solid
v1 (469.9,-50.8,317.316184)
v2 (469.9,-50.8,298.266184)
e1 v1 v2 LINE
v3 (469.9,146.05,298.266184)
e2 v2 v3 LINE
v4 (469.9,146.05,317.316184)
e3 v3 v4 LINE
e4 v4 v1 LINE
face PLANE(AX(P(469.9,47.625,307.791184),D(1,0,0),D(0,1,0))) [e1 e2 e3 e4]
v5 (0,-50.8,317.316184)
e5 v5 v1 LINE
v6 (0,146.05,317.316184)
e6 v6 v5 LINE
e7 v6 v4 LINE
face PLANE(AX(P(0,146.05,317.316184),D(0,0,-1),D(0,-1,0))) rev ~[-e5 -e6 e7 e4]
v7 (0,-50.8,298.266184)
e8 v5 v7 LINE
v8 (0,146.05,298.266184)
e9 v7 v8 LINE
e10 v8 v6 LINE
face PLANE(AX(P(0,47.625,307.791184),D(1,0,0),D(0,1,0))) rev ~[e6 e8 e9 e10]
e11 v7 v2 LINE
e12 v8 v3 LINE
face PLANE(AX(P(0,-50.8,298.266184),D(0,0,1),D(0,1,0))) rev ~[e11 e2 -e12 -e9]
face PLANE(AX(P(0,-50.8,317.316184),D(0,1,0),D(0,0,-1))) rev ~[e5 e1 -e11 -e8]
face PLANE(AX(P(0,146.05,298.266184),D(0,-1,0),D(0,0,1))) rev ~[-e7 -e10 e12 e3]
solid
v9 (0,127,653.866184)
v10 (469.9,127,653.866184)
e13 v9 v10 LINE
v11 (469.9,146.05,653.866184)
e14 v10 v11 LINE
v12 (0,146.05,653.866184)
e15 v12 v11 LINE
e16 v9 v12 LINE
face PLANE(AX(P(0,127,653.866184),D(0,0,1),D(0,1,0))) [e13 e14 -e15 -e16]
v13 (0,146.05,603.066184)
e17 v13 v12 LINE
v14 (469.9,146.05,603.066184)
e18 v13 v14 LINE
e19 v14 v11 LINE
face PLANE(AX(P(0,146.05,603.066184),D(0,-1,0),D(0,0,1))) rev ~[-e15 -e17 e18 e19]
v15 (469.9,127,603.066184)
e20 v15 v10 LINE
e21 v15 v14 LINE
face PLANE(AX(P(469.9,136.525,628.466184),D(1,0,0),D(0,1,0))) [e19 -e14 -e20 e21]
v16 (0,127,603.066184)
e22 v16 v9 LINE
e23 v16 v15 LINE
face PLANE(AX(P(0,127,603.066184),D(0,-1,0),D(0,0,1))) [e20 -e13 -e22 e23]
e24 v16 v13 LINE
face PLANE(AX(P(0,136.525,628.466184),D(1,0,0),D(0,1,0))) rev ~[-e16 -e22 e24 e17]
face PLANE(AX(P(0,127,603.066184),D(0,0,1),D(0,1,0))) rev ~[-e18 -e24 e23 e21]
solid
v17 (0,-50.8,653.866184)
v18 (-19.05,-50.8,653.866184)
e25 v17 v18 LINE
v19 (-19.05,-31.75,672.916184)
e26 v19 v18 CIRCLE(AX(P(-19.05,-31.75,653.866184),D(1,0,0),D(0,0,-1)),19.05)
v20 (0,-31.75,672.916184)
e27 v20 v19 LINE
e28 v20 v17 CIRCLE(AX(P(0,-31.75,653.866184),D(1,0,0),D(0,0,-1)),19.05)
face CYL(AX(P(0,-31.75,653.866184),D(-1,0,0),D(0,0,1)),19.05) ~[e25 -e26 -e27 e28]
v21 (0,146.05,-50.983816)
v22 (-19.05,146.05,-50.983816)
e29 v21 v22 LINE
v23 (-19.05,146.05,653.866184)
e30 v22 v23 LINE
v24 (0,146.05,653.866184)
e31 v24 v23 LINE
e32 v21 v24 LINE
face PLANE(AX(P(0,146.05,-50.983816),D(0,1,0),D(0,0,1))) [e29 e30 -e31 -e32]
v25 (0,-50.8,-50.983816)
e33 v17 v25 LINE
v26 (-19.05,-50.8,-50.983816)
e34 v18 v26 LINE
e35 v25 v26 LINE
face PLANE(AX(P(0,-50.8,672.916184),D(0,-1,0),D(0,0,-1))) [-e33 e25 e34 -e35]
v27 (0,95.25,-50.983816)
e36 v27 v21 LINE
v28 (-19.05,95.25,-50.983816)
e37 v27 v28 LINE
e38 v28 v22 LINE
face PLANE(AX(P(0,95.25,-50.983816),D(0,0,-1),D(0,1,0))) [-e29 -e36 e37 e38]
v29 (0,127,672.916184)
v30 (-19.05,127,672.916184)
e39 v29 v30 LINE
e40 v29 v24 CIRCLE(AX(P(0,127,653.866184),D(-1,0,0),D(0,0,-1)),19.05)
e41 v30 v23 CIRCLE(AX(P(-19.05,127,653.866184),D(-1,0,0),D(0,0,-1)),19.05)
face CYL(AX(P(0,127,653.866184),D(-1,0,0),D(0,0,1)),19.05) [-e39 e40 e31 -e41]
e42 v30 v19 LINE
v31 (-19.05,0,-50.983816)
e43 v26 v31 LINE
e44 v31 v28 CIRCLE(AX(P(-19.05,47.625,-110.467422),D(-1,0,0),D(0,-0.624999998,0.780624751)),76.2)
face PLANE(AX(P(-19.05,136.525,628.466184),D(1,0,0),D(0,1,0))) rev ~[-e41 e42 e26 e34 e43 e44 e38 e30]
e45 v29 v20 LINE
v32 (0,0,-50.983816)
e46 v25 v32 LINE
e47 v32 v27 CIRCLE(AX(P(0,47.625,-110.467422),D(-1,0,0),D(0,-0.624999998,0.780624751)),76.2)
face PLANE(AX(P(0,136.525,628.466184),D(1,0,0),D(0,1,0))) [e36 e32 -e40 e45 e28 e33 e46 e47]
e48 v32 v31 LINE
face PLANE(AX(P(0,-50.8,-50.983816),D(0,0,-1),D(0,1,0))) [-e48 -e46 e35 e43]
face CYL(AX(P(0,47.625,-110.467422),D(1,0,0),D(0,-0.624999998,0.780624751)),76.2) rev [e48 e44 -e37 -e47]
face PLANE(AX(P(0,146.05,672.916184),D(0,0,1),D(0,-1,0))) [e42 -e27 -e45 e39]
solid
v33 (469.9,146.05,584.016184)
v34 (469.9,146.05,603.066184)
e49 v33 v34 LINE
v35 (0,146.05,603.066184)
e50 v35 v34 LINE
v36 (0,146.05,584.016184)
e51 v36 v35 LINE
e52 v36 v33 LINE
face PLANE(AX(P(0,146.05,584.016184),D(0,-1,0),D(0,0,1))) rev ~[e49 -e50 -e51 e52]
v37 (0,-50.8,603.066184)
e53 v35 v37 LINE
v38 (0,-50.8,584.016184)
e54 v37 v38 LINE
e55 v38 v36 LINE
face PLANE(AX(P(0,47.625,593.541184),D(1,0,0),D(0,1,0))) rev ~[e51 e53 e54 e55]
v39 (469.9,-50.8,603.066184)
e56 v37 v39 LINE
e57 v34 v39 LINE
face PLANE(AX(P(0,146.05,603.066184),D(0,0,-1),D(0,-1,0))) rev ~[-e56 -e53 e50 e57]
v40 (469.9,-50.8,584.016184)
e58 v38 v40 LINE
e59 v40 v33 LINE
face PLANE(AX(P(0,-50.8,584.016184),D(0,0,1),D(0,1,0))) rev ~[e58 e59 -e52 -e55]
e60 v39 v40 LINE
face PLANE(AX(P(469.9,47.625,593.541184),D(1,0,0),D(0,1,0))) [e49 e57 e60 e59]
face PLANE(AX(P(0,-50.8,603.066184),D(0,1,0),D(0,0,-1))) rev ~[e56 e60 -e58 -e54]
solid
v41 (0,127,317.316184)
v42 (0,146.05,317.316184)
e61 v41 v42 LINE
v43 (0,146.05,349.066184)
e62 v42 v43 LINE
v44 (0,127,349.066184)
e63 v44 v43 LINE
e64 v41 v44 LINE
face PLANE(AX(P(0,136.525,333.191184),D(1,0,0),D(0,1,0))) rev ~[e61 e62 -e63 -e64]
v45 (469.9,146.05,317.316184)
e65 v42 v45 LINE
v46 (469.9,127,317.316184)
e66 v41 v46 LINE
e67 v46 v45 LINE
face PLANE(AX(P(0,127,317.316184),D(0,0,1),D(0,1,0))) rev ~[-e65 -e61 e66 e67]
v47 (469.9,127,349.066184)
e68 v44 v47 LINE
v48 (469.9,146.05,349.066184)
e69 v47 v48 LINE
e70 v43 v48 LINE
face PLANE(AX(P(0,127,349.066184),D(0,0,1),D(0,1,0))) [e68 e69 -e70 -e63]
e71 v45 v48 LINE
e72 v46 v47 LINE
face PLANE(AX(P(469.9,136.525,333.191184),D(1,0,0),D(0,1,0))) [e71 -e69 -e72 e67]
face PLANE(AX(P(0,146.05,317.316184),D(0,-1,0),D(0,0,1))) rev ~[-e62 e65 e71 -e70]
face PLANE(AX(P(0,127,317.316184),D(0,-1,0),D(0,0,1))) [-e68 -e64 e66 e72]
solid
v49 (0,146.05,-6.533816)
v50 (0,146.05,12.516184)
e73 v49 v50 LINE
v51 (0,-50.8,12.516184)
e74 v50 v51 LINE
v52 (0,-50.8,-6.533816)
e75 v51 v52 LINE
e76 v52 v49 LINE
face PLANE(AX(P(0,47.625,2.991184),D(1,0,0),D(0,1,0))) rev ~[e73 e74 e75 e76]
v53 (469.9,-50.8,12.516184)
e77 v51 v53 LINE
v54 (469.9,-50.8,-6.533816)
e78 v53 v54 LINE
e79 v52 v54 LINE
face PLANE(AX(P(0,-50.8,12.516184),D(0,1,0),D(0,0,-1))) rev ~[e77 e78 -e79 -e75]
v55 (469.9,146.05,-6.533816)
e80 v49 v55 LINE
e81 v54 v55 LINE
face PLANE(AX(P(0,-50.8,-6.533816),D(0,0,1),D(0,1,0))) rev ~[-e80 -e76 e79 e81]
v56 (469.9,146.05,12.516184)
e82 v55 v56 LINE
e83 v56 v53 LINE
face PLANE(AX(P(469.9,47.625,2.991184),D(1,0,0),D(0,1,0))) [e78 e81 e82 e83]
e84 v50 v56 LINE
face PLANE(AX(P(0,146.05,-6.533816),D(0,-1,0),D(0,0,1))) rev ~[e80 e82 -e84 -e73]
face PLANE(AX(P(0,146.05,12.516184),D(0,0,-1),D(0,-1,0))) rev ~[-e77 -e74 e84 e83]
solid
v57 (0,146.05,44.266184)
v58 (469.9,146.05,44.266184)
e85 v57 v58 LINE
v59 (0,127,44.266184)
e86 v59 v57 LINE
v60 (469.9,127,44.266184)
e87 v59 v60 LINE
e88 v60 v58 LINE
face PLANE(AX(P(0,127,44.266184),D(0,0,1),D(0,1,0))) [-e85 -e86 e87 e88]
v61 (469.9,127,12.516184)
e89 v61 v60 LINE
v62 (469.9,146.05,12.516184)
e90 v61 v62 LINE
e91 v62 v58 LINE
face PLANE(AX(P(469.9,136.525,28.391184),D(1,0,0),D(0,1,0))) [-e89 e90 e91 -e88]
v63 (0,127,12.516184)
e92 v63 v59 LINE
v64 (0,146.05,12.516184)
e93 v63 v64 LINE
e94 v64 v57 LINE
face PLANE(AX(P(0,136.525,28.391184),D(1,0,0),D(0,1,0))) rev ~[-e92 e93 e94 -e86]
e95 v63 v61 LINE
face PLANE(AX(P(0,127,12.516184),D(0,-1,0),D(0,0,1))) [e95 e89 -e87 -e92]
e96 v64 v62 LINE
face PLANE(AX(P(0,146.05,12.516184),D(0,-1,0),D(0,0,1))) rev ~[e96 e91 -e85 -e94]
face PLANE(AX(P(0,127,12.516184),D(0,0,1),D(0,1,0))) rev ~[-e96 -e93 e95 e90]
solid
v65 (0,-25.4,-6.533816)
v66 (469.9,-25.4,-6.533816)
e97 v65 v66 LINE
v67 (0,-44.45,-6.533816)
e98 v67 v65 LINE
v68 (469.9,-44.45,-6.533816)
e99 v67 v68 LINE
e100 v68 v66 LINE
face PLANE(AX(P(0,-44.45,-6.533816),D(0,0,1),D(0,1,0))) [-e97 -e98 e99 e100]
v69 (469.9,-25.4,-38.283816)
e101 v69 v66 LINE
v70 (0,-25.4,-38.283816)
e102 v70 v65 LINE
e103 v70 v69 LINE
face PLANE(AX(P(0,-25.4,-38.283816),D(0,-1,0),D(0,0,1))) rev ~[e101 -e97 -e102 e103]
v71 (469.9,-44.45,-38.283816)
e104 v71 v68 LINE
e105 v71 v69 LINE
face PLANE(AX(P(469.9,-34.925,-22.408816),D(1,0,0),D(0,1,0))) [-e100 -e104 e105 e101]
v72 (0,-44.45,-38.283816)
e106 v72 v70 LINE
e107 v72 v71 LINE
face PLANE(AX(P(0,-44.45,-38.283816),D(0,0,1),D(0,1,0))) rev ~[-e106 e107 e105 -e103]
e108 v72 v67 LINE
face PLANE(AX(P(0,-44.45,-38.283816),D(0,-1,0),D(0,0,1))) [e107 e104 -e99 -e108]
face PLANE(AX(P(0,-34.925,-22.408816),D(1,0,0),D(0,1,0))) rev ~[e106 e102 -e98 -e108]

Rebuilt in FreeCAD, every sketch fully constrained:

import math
import FreeCAD as App
import Part
import Sketcher
from FreeCAD import Vector
Q = App.Units.Quantity


def edges_at(feature, points):
    """Names of the edges that pass closest to the given points."""
    edges = feature.Shape.Edges
    near = lambda p: min(range(len(edges)), key=lambda i: edges[i].distToShape(Part.Vertex(*p))[0])
    return sorted({f"Edge{near(p) + 1}" for p in points})

doc = App.newDocument("Part")
body = doc.addObject("PartDesign::Body", "Body")

# Sketch on YZ plane
sketch1 = doc.addObject("Sketcher::SketchObject", "Sketch")
body.addObject(sketch1)
sketch1.AttachmentSupport = (doc.YZ_Plane, [""])
sketch1.MapMode = "FlatFace"
sketch1.addGeometry([
    Part.LineSegment(Vector(146, 673, 0), Vector(-51, 673, 0)),  # 0
    Part.LineSegment(Vector(-51, 673, 0), Vector(-51, -51, 0)),  # 1
    Part.LineSegment(Vector(-51, -51, 0), Vector(0, -51, 0)),  # 2
    Part.ArcOfCircle(Part.Circle(Vector(48, -110, 0), Vector(0, 0, 1), 76), math.radians(51), math.radians(129)),  # 3
    Part.LineSegment(Vector(95, -51, 0), Vector(146, -51, 0)),  # 4
    Part.LineSegment(Vector(146, -51, 0), Vector(146, 673, 0)),  # 5
], False)
sketch1.addConstraint([
    Sketcher.Constraint("Coincident", 0, 2, 1, 1),
    Sketcher.Constraint("Coincident", 1, 2, 2, 1),
    Sketcher.Constraint("Coincident", 2, 2, 3, 2),
    Sketcher.Constraint("Coincident", 3, 1, 4, 1),
    Sketcher.Constraint("Coincident", 4, 2, 5, 1),
    Sketcher.Constraint("Coincident", 5, 2, 0, 1),
    Sketcher.Constraint("Horizontal", 0),
    Sketcher.Constraint("Vertical", 1),
    Sketcher.Constraint("Horizontal", 2),
    Sketcher.Constraint("Horizontal", 4),
    Sketcher.Constraint("Vertical", 5),
    Sketcher.Constraint("PointOnObject", 2, 2, -2),
    Sketcher.Constraint("Horizontal", 2, 2, 3, 1),
    Sketcher.Constraint("Equal", 2, 4),
    Sketcher.Constraint("Radius", 3, Q("3 in")),
    Sketcher.Constraint("DistanceX", 2, 1, 2, 2, Q("2 in")),
    Sketcher.Constraint("DistanceY", 1, 2, 1, 1, Q("28.5 in")),
    Sketcher.Constraint("DistanceX", 0, 2, 0, 1, Q("7.75 in")),
    Sketcher.Constraint("DistanceY", 3, 3, -1, 1, Q("110.467422 mm")),
])
pad1 = doc.addObject("PartDesign::Pad", "Pad")
body.addObject(pad1)
pad1.Profile = sketch1
pad1.Length = Q("0.75 in")
pad1.Reversed = True
doc.recompute()

fillet = doc.addObject("PartDesign::Fillet", "Fillet")
body.addObject(fillet)
fillet.Base = (pad1, edges_at(pad1, [(-9.525, 146.05, 672.916), (-9.525, -50.8, 672.916)]))
fillet.Radius = Q("0.75 in")
body2 = doc.addObject("PartDesign::Body", "Body001")
body2.AllowCompound = True

# Sketch on YZ plane
sketch2 = doc.addObject("Sketcher::SketchObject", "Sketch001")
body2.addObject(sketch2)
sketch2.AttachmentSupport = (doc.getObject("YZ_Plane001"), [""])
sketch2.MapMode = "FlatFace"
sketch2.addGeometry([
    Part.LineSegment(Vector(127, 654, 0), Vector(127, 603, 0)),  # 0
    Part.LineSegment(Vector(127, 603, 0), Vector(146, 603, 0)),  # 1
    Part.LineSegment(Vector(146, 603, 0), Vector(146, 654, 0)),  # 2
    Part.LineSegment(Vector(146, 654, 0), Vector(127, 654, 0)),  # 3
    Part.LineSegment(Vector(127, 349, 0), Vector(127, 317, 0)),  # 4
    Part.LineSegment(Vector(127, 317, 0), Vector(146, 317, 0)),  # 5
    Part.LineSegment(Vector(146, 317, 0), Vector(146, 349, 0)),  # 6
    Part.LineSegment(Vector(146, 349, 0), Vector(127, 349, 0)),  # 7
    Part.LineSegment(Vector(127, 44, 0), Vector(127, 13, 0)),  # 8
    Part.LineSegment(Vector(127, 13, 0), Vector(146, 13, 0)),  # 9
    Part.LineSegment(Vector(146, 13, 0), Vector(146, 44, 0)),  # 10
    Part.LineSegment(Vector(146, 44, 0), Vector(127, 44, 0)),  # 11
    Part.LineSegment(Vector(-44, -7, 0), Vector(-44, -38, 0)),  # 12
    Part.LineSegment(Vector(-44, -38, 0), Vector(-25, -38, 0)),  # 13
    Part.LineSegment(Vector(-25, -38, 0), Vector(-25, -7, 0)),  # 14
    Part.LineSegment(Vector(-25, -7, 0), Vector(-44, -7, 0)),  # 15
], False)
sketch2.addConstraint([
    Sketcher.Constraint("Coincident", 0, 2, 1, 1),
    Sketcher.Constraint("Coincident", 1, 2, 2, 1),
    Sketcher.Constraint("Coincident", 2, 2, 3, 1),
    Sketcher.Constraint("Coincident", 3, 2, 0, 1),
    Sketcher.Constraint("Coincident", 4, 2, 5, 1),
    Sketcher.Constraint("Coincident", 5, 2, 6, 1),
    Sketcher.Constraint("Coincident", 6, 2, 7, 1),
    Sketcher.Constraint("Coincident", 7, 2, 4, 1),
    Sketcher.Constraint("Coincident", 8, 2, 9, 1),
    Sketcher.Constraint("Coincident", 9, 2, 10, 1),
    Sketcher.Constraint("Coincident", 10, 2, 11, 1),
    Sketcher.Constraint("Coincident", 11, 2, 8, 1),
    Sketcher.Constraint("Coincident", 12, 2, 13, 1),
    Sketcher.Constraint("Coincident", 13, 2, 14, 1),
    Sketcher.Constraint("Coincident", 14, 2, 15, 1),
    Sketcher.Constraint("Coincident", 15, 2, 12, 1),
    Sketcher.Constraint("Vertical", 0),
    Sketcher.Constraint("Horizontal", 1),
    Sketcher.Constraint("Vertical", 2),
    Sketcher.Constraint("Horizontal", 3),
    Sketcher.Constraint("Vertical", 4),
    Sketcher.Constraint("Horizontal", 5),
    Sketcher.Constraint("Vertical", 6),
    Sketcher.Constraint("Horizontal", 7),
    Sketcher.Constraint("Vertical", 8),
    Sketcher.Constraint("Horizontal", 9),
    Sketcher.Constraint("Vertical", 10),
    Sketcher.Constraint("Horizontal", 11),
    Sketcher.Constraint("Vertical", 12),
    Sketcher.Constraint("Horizontal", 13),
    Sketcher.Constraint("Vertical", 14),
    Sketcher.Constraint("Horizontal", 15),
    Sketcher.Constraint("Vertical", 3, 2, 4, 2),
    Sketcher.Constraint("Vertical", 2, 2, 5, 2),
    Sketcher.Constraint("Vertical", 7, 2, 8, 2),
    Sketcher.Constraint("Vertical", 6, 2, 9, 2),
    Sketcher.Constraint("Equal", 11, 13),
    Sketcher.Constraint("Equal", 6, 8),
    Sketcher.Constraint("Equal", 10, 12),
    Sketcher.Constraint("DistanceY", 0, 2, 0, 1, Q("2 in")),
    Sketcher.Constraint("DistanceX", -1, 1, 0, 2, Q("5 in")),
    Sketcher.Constraint("DistanceX", 13, 2, -1, 1, Q("1 in")),
    Sketcher.Constraint("DistanceY", 6, 2, 1, 2, Q("10 in")),
    Sketcher.Constraint("DistanceY", 8, 2, 4, 2, Q("12 in")),
    Sketcher.Constraint("DistanceY", 12, 2, 8, 2, Q("2 in")),
    Sketcher.Constraint("DistanceX", 1, 1, 1, 2, Q("0.75 in")),
    Sketcher.Constraint("DistanceY", 4, 2, 4, 1, Q("1.25 in")),
    Sketcher.Constraint("DistanceY", -1, 1, 0, 2, Q("603.066184 mm")),
])
pad2 = doc.addObject("PartDesign::Pad", "Pad001")
body2.addObject(pad2)
pad2.Profile = sketch2
pad2.Length = Q("18.5 in")
body3 = doc.addObject("PartDesign::Body", "Body002")
body3.AllowCompound = True

# Sketch on YZ plane
sketch3 = doc.addObject("Sketcher::SketchObject", "Sketch002")
body3.addObject(sketch3)
sketch3.AttachmentSupport = (doc.getObject("YZ_Plane002"), [""])
sketch3.MapMode = "FlatFace"
sketch3.addGeometry([
    Part.LineSegment(Vector(-51, 603, 0), Vector(-51, 584, 0)),  # 0
    Part.LineSegment(Vector(-51, 584, 0), Vector(146, 584, 0)),  # 1
    Part.LineSegment(Vector(146, 584, 0), Vector(146, 603, 0)),  # 2
    Part.LineSegment(Vector(146, 603, 0), Vector(-51, 603, 0)),  # 3
    Part.LineSegment(Vector(-51, 298, 0), Vector(146, 298, 0)),  # 4
    Part.LineSegment(Vector(146, 298, 0), Vector(146, 317, 0)),  # 5
    Part.LineSegment(Vector(146, 317, 0), Vector(-51, 317, 0)),  # 6
    Part.LineSegment(Vector(-51, 317, 0), Vector(-51, 298, 0)),  # 7
    Part.LineSegment(Vector(146, -7, 0), Vector(146, 13, 0)),  # 8
    Part.LineSegment(Vector(146, 13, 0), Vector(-51, 13, 0)),  # 9
    Part.LineSegment(Vector(-51, 13, 0), Vector(-51, -7, 0)),  # 10
    Part.LineSegment(Vector(-51, -7, 0), Vector(146, -7, 0)),  # 11
], False)
sketch3.addConstraint([
    Sketcher.Constraint("Coincident", 0, 2, 1, 1),
    Sketcher.Constraint("Coincident", 1, 2, 2, 1),
    Sketcher.Constraint("Coincident", 2, 2, 3, 1),
    Sketcher.Constraint("Coincident", 3, 2, 0, 1),
    Sketcher.Constraint("Coincident", 4, 2, 5, 1),
    Sketcher.Constraint("Coincident", 5, 2, 6, 1),
    Sketcher.Constraint("Coincident", 6, 2, 7, 1),
    Sketcher.Constraint("Coincident", 7, 2, 4, 1),
    Sketcher.Constraint("Coincident", 8, 2, 9, 1),
    Sketcher.Constraint("Coincident", 9, 2, 10, 1),
    Sketcher.Constraint("Coincident", 10, 2, 11, 1),
    Sketcher.Constraint("Coincident", 11, 2, 8, 1),
    Sketcher.Constraint("Vertical", 0),
    Sketcher.Constraint("Horizontal", 1),
    Sketcher.Constraint("Vertical", 2),
    Sketcher.Constraint("Horizontal", 3),
    Sketcher.Constraint("Horizontal", 4),
    Sketcher.Constraint("Vertical", 5),
    Sketcher.Constraint("Horizontal", 6),
    Sketcher.Constraint("Vertical", 7),
    Sketcher.Constraint("Vertical", 8),
    Sketcher.Constraint("Horizontal", 9),
    Sketcher.Constraint("Vertical", 10),
    Sketcher.Constraint("Horizontal", 11),
    Sketcher.Constraint("Vertical", 2, 2, 4, 2),
    Sketcher.Constraint("Vertical", 3, 2, 6, 2),
    Sketcher.Constraint("Vertical", 5, 2, 8, 2),
    Sketcher.Constraint("Vertical", 7, 2, 9, 2),
    Sketcher.Constraint("Equal", 2, 5),
    Sketcher.Constraint("Equal", 7, 8),
    Sketcher.Constraint("DistanceX", 0, 2, -1, 1, Q("2 in")),
    Sketcher.Constraint("DistanceY", 4, 2, 2, 2, Q("12 in")),
    Sketcher.Constraint("DistanceY", 8, 2, 5, 2, Q("12 in")),
    Sketcher.Constraint("DistanceX", 1, 1, 1, 2, Q("7.75 in")),
    Sketcher.Constraint("DistanceY", 0, 2, 0, 1, Q("0.75 in")),
    Sketcher.Constraint("DistanceY", -1, 1, 0, 2, Q("584.016184 mm")),
])
pad3 = doc.addObject("PartDesign::Pad", "Pad002")
body3.addObject(pad3)
pad3.Profile = sketch3
pad3.Length = Q("18.5 in")

doc.recompute()
